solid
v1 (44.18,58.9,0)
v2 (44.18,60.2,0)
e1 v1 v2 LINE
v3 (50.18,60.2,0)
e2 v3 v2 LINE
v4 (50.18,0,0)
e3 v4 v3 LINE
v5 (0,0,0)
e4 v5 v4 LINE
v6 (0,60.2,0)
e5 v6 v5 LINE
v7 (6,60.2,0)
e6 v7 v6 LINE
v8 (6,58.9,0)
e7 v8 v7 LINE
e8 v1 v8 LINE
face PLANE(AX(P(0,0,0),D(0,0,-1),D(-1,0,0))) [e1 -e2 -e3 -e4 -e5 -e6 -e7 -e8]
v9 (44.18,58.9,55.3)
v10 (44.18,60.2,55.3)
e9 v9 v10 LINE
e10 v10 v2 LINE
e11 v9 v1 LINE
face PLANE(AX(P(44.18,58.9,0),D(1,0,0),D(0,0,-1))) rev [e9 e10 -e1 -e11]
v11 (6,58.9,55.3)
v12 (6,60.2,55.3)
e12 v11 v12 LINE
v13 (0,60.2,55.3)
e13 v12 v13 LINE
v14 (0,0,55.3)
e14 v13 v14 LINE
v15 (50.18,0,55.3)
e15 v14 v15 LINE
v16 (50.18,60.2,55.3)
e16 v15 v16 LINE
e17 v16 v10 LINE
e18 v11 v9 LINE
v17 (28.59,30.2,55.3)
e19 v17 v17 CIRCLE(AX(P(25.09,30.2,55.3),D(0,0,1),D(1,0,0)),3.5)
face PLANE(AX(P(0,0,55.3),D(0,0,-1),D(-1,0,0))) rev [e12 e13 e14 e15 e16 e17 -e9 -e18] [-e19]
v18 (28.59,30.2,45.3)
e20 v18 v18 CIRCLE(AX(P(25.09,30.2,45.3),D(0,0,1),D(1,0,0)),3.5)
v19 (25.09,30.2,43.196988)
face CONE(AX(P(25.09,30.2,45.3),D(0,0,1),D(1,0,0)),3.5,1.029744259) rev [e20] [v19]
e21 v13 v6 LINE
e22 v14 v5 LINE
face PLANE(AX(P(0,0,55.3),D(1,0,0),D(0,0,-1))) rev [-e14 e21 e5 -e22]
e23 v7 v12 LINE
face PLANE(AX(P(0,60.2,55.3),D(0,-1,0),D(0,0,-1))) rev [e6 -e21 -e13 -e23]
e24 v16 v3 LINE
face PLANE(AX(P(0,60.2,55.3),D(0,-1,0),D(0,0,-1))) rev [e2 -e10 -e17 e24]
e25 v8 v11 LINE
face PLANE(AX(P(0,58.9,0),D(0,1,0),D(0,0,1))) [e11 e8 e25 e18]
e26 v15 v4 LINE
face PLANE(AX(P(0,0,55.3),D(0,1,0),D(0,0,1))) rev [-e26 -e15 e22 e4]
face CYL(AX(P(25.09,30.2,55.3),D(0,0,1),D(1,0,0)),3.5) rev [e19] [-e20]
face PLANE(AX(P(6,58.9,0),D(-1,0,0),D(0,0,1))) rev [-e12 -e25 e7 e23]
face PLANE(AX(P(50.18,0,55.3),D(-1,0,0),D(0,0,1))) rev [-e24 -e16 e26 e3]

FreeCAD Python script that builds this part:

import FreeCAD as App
import Part
import Sketcher

doc = App.newDocument("Part")
body = doc.addObject("PartDesign::Body", "Body")

sketch1 = doc.addObject("Sketcher::SketchObject", "Sketch")
body.addObject(sketch1)
sketch1.AttachmentSupport = (doc.XY_Plane, [""])
sketch1.MapMode = "FlatFace"
sketch1.addGeometry([
    Part.LineSegment(App.Vector(0, 60, 0), App.Vector(0, 0, 0)),
    Part.LineSegment(App.Vector(0, 0, 0), App.Vector(50, 0, 0)),
    Part.LineSegment(App.Vector(50, 0, 0), App.Vector(50, 60, 0)),
    Part.LineSegment(App.Vector(50, 60, 0), App.Vector(0, 60, 0)),
], False)
sketch1.addConstraint([
    Sketcher.Constraint("Coincident", 0, 2, 1, 1),
    Sketcher.Constraint("Coincident", 1, 2, 2, 1),
    Sketcher.Constraint("Coincident", 2, 2, 3, 1),
    Sketcher.Constraint("Coincident", 3, 2, 0, 1),
    Sketcher.Constraint("Vertical", 0),
    Sketcher.Constraint("Horizontal", 1),
    Sketcher.Constraint("Vertical", 2),
    Sketcher.Constraint("Horizontal", 3),
    Sketcher.Constraint("Coincident", 0, 2, -1, 1),
    Sketcher.Constraint("DistanceY", 0, 2, 0, 1, 60.2),
    Sketcher.Constraint("DistanceX", 1, 1, 1, 2, 50.18),
])
pad1 = doc.addObject("PartDesign::Pad", "Pad")
body.addObject(pad1)
pad1.Profile = sketch1
pad1.Length = 55.3

sketch2 = doc.addObject("Sketcher::SketchObject", "Sketch001")
body.addObject(sketch2)
sketch2.AttachmentSupport = (doc.XZ_Plane, [""])
sketch2.MapMode = "FlatFace"
sketch2.AttachmentOffset = App.Placement(App.Vector(0, 0, -60.2), App.Rotation())
sketch2.addGeometry([
    Part.LineSegment(App.Vector(6, 0, 0), App.Vector(6, 55, 0)),
    Part.LineSegment(App.Vector(6, 55, 0), App.Vector(44, 55, 0)),
    Part.LineSegment(App.Vector(44, 55, 0), App.Vector(44, 0, 0)),
    Part.LineSegment(App.Vector(44, 0, 0), App.Vector(6, 0, 0)),
], False)
sketch2.addConstraint([
    Sketcher.Constraint("Coincident", 0, 2, 1, 1),
    Sketcher.Constraint("Coincident", 1, 2, 2, 1),
    Sketcher.Constraint("Coincident", 2, 2, 3, 1),
    Sketcher.Constraint("Coincident", 3, 2, 0, 1),
    Sketcher.Constraint("Vertical", 0),
    Sketcher.Constraint("Horizontal", 1),
    Sketcher.Constraint("Vertical", 2),
    Sketcher.Constraint("Horizontal", 3),
    Sketcher.Constraint("PointOnObject", 2, 2, -1),
    Sketcher.Constraint("DistanceY", 0, 1, 0, 2, 55.3),
    Sketcher.Constraint("DistanceX", -1, 1, 0, 2, 6.0),
    Sketcher.Constraint("DistanceX", 1, 1, 1, 2, 38.18),
])
pocket1 = doc.addObject("PartDesign::Pocket", "Pocket")
body.addObject(pocket1)
pocket1.Profile = sketch2
pocket1.Length = 1.3
pocket1.Reversed = True

sketch3 = doc.addObject("Sketcher::SketchObject", "Sketch002")
body.addObject(sketch3)
sketch3.AttachmentSupport = (doc.XY_Plane, [""])
sketch3.MapMode = "FlatFace"
sketch3.AttachmentOffset = App.Placement(App.Vector(0, 0, 55.3), App.Rotation())
sketch3.addGeometry(Part.Circle(App.Vector(25.1, 30.2, 0), App.Vector(0, 0, 1), 3.5), False)
sketch3.addConstraint([
    Sketcher.Constraint("Diameter", 0, 7.0),
    Sketcher.Constraint("DistanceY", -1, 1, 0, 3, 30.2),
    Sketcher.Constraint("DistanceX", -1, 1, 0, 3, 25.09),
])
doc.recompute()
hole = doc.addObject("PartDesign::Hole", "Hole")
body.addObject(hole)
hole.Profile = sketch3
hole.ThreadType = "None"
hole.Diameter = 7
hole.DepthType = "Dimension"
hole.Depth = 10
hole.DrillPoint = "Angled"
hole.DrillPointAngle = 118

doc.recompute()
